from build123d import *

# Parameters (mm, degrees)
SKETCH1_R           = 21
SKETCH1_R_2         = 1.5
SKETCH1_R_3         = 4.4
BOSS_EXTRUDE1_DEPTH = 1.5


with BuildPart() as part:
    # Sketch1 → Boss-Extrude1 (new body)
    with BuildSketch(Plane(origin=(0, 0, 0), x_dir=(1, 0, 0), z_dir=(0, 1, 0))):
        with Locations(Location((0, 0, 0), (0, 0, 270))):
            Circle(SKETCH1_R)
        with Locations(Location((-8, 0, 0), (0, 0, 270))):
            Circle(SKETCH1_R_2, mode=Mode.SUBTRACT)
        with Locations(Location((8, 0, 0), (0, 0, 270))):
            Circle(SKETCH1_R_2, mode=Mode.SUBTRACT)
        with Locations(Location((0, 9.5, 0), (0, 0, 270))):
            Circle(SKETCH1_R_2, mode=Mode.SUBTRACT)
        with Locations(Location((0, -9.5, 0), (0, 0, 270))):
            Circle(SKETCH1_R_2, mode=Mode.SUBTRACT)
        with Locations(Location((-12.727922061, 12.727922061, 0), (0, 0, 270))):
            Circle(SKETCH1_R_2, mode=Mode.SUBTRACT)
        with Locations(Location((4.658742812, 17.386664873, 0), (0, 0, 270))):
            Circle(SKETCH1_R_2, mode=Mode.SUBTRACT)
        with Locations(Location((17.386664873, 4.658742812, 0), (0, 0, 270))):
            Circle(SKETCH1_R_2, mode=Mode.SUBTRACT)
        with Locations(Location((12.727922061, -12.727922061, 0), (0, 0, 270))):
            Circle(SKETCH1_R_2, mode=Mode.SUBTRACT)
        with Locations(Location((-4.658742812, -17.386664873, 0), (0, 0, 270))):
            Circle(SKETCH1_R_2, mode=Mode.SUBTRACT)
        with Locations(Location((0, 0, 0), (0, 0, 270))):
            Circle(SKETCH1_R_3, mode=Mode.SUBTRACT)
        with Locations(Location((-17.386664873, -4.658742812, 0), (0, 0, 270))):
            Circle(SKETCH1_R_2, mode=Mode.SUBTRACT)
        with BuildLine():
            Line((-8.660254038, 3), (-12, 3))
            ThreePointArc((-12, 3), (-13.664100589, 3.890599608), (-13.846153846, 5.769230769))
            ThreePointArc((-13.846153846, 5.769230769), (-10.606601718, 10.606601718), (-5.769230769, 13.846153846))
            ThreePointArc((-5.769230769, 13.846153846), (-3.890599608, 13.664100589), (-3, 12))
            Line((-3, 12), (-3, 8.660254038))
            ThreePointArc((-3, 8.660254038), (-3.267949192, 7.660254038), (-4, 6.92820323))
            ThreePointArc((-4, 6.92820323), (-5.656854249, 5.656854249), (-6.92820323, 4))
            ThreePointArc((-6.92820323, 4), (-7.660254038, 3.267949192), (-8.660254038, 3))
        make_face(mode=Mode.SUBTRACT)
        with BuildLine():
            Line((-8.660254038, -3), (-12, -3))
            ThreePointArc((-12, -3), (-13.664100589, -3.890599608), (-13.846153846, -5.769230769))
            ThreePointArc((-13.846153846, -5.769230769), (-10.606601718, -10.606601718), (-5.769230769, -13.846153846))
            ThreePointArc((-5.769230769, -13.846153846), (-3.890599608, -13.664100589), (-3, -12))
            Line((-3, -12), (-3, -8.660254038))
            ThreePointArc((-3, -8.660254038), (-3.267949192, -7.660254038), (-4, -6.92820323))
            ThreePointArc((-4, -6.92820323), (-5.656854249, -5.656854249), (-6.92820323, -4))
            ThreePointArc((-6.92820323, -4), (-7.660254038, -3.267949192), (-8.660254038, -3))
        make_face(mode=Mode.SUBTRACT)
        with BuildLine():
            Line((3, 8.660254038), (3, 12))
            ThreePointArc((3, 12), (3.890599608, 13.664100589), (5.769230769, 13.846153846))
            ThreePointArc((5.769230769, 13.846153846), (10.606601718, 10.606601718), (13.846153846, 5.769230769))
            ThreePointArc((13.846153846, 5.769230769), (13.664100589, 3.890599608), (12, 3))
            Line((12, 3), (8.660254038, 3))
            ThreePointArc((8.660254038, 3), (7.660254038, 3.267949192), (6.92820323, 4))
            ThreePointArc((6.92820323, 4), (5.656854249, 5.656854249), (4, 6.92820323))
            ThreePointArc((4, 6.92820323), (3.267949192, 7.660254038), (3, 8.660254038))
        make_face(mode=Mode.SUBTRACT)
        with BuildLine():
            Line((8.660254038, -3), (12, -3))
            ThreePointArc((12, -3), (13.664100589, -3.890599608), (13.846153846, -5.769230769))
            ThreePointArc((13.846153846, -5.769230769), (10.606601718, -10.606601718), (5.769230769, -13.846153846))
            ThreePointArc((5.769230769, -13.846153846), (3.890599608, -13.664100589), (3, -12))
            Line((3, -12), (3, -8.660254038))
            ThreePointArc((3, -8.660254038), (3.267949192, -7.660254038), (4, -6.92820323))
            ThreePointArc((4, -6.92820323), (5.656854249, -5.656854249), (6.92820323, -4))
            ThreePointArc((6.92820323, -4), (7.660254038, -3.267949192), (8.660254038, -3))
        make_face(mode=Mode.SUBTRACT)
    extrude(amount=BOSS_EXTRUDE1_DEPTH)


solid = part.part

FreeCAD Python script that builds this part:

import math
import FreeCAD as App
import Part
import Sketcher

doc = App.newDocument("Part")
body = doc.addObject("PartDesign::Body", "Body")

# Sketch on XZ plane
sketch1 = body.newObject("Sketcher::SketchObject", "Sketch")
sketch1.AttachmentSupport = (doc.getObject("XZ_Plane"), [""])
sketch1.MapMode = "FlatFace"
sketch1.addGeometry([
    Part.Circle(App.Vector(0, 0, 0), App.Vector(0, 0, 1), 21),  # 0
    Part.Circle(App.Vector(-12.7, -12.7, 0), App.Vector(0, 0, 1), 1.5),  # 1
    Part.Circle(App.Vector(0, -9.5, 0), App.Vector(0, 0, 1), 1.5),  # 2
    Part.ArcOfCircle(Part.Circle(App.Vector(-8.7, -5, 0), App.Vector(0, 0, 1), 2), math.radians(30), math.radians(90)),  # 3
    Part.LineSegment(App.Vector(-8.7, -3, 0), App.Vector(-12, -3, 0)),  # 4
    Part.ArcOfCircle(Part.Circle(App.Vector(-12, -5, 0), App.Vector(0, 0, 1), 2), math.radians(90), math.radians(203)),  # 5
    Part.ArcOfCircle(Part.Circle(App.Vector(0, 0, 0), App.Vector(0, 0, 1), 15), math.radians(-157), math.radians(-113)),  # 6
    Part.ArcOfCircle(Part.Circle(App.Vector(-5, -12, 0), App.Vector(0, 0, 1), 2), math.radians(-113), math.radians(0)),  # 7
    Part.LineSegment(App.Vector(-3, -12, 0), App.Vector(-3, -8.7, 0)),  # 8
    Part.ArcOfCircle(Part.Circle(App.Vector(-5, -8.7, 0), App.Vector(0, 0, 1), 2), math.radians(0), math.radians(60)),  # 9
    Part.ArcOfCircle(Part.Circle(App.Vector(0, 0, 0), App.Vector(0, 0, 1), 8), math.radians(-150), math.radians(-120)),  # 10
    Part.Circle(App.Vector(-17.4, 4.7, 0), App.Vector(0, 0, 1), 1.5),  # 11
    Part.Circle(App.Vector(-8, 0, 0), App.Vector(0, 0, 1), 1.5),  # 12
    Part.LineSegment(App.Vector(-12, 3, 0), App.Vector(-8.7, 3, 0)),  # 13
    Part.ArcOfCircle(Part.Circle(App.Vector(-8.7, 5, 0), App.Vector(0, 0, 1), 2), math.radians(-90), math.radians(-30)),  # 14
    Part.ArcOfCircle(Part.Circle(App.Vector(0, 0, 0), App.Vector(0, 0, 1), 8), math.radians(120), math.radians(150)),  # 15
    Part.ArcOfCircle(Part.Circle(App.Vector(-5, 8.7, 0), App.Vector(0, 0, 1), 2), math.radians(-60), math.radians(0)),  # 16
    Part.LineSegment(App.Vector(-3, 8.7, 0), App.Vector(-3, 12, 0)),  # 17
    Part.ArcOfCircle(Part.Circle(App.Vector(-5, 12, 0), App.Vector(0, 0, 1), 2), math.radians(0), math.radians(113)),  # 18
    Part.ArcOfCircle(Part.Circle(App.Vector(0, 0, 0), App.Vector(0, 0, 1), 15), math.radians(113), math.radians(157)),  # 19
    Part.ArcOfCircle(Part.Circle(App.Vector(-12, 5, 0), App.Vector(0, 0, 1), 2), math.radians(157), math.radians(270)),  # 20
    Part.Circle(App.Vector(-4.7, 17.4, 0), App.Vector(0, 0, 1), 1.5),  # 21
    Part.Circle(App.Vector(4.7, -17.4, 0), App.Vector(0, 0, 1), 1.5),  # 22
    Part.ArcOfCircle(Part.Circle(App.Vector(5, -8.7, 0), App.Vector(0, 0, 1), 2), math.radians(120), math.radians(180)),  # 23
    Part.LineSegment(App.Vector(3, -8.7, 0), App.Vector(3, -12, 0)),  # 24
    Part.ArcOfCircle(Part.Circle(App.Vector(5, -12, 0), App.Vector(0, 0, 1), 2), math.radians(180), math.radians(293)),  # 25
    Part.ArcOfCircle(Part.Circle(App.Vector(0, 0, 0), App.Vector(0, 0, 1), 15), math.radians(-67), math.radians(-23)),  # 26
    Part.ArcOfCircle(Part.Circle(App.Vector(12, -5, 0), App.Vector(0, 0, 1), 2), math.radians(-23), math.radians(90)),  # 27
    Part.LineSegment(App.Vector(12, -3, 0), App.Vector(8.7, -3, 0)),  # 28
    Part.ArcOfCircle(Part.Circle(App.Vector(8.7, -5, 0), App.Vector(0, 0, 1), 2), math.radians(90), math.radians(150)),  # 29
    Part.ArcOfCircle(Part.Circle(App.Vector(0, 0, 0), App.Vector(0, 0, 1), 8), math.radians(-60), math.radians(-30)),  # 30
    Part.Circle(App.Vector(17.4, -4.7, 0), App.Vector(0, 0, 1), 1.5),  # 31
    Part.Circle(App.Vector(0, 0, 0), App.Vector(0, 0, 1), 4.4),  # 32
    Part.Circle(App.Vector(8, 0, 0), App.Vector(0, 0, 1), 1.5),  # 33
    Part.ArcOfCircle(Part.Circle(App.Vector(8.7, 5, 0), App.Vector(0, 0, 1), 2), math.radians(-150), math.radians(-90)),  # 34
    Part.LineSegment(App.Vector(8.7, 3, 0), App.Vector(12, 3, 0)),  # 35
    Part.ArcOfCircle(Part.Circle(App.Vector(12, 5, 0), App.Vector(0, 0, 1), 2), math.radians(-90), math.radians(23)),  # 36
    Part.ArcOfCircle(Part.Circle(App.Vector(0, 0, 0), App.Vector(0, 0, 1), 15), math.radians(23), math.radians(67)),  # 37
    Part.ArcOfCircle(Part.Circle(App.Vector(5, 12, 0), App.Vector(0, 0, 1), 2), math.radians(67), math.radians(180)),  # 38
    Part.LineSegment(App.Vector(3, 12, 0), App.Vector(3, 8.7, 0)),  # 39
    Part.ArcOfCircle(Part.Circle(App.Vector(5, 8.7, 0), App.Vector(0, 0, 1), 2), math.radians(180), math.radians(240)),  # 40
    Part.ArcOfCircle(Part.Circle(App.Vector(0, 0, 0), App.Vector(0, 0, 1), 8), math.radians(30), math.radians(60)),  # 41
    Part.Circle(App.Vector(0, 9.5, 0), App.Vector(0, 0, 1), 1.5),  # 42
    Part.Circle(App.Vector(12.7, 12.7, 0), App.Vector(0, 0, 1), 1.5),  # 43
], False)
sketch1.addConstraint([
    Sketcher.Constraint("Tangent", 3, 2, 4, 1),
    Sketcher.Constraint("Tangent", 4, 2, 5, 1),
    Sketcher.Constraint("Tangent", 5, 2, 6, 1),
    Sketcher.Constraint("Tangent", 6, 2, 7, 1),
    Sketcher.Constraint("Tangent", 7, 2, 8, 1),
    Sketcher.Constraint("Tangent", 8, 2, 9, 1),
    Sketcher.Constraint("Tangent", 9, 2, 10, 2),
    Sketcher.Constraint("Tangent", 10, 1, 3, 1),
    Sketcher.Constraint("Tangent", 13, 2, 14, 1),
    Sketcher.Constraint("Tangent", 14, 2, 15, 2),
    Sketcher.Constraint("Tangent", 15, 1, 16, 1),
    Sketcher.Constraint("Tangent", 16, 2, 17, 1),
    Sketcher.Constraint("Tangent", 17, 2, 18, 1),
    Sketcher.Constraint("Tangent", 18, 2, 19, 1),
    Sketcher.Constraint("Tangent", 19, 2, 20, 1),
    Sketcher.Constraint("Tangent", 20, 2, 13, 1),
    Sketcher.Constraint("Tangent", 23, 2, 24, 1),
    Sketcher.Constraint("Tangent", 24, 2, 25, 1),
    Sketcher.Constraint("Tangent", 25, 2, 26, 1),
    Sketcher.Constraint("Tangent", 26, 2, 27, 1),
    Sketcher.Constraint("Tangent", 27, 2, 28, 1),
    Sketcher.Constraint("Tangent", 28, 2, 29, 1),
    Sketcher.Constraint("Tangent", 29, 2, 30, 2),
    Sketcher.Constraint("Tangent", 30, 1, 23, 1),
    Sketcher.Constraint("Tangent", 34, 2, 35, 1),
    Sketcher.Constraint("Tangent", 35, 2, 36, 1),
    Sketcher.Constraint("Tangent", 36, 2, 37, 1),
    Sketcher.Constraint("Tangent", 37, 2, 38, 1),
    Sketcher.Constraint("Tangent", 38, 2, 39, 1),
    Sketcher.Constraint("Tangent", 39, 2, 40, 1),
    Sketcher.Constraint("Tangent", 40, 2, 41, 2),
    Sketcher.Constraint("Tangent", 41, 1, 34, 1),
    Sketcher.Constraint("Horizontal", 4),
    Sketcher.Constraint("Vertical", 8),
    Sketcher.Constraint("Horizontal", 13),
    Sketcher.Constraint("Vertical", 17),
    Sketcher.Constraint("Vertical", 24),
    Sketcher.Constraint("Horizontal", 28),
    Sketcher.Constraint("Horizontal", 35),
    Sketcher.Constraint("Vertical", 39),
    Sketcher.Constraint("Coincident", 0, 3, -1, 1),
    Sketcher.Constraint("Coincident", 6, 3, -1, 1),
    Sketcher.Constraint("Coincident", 10, 3, -1, 1),
    Sketcher.Constraint("Coincident", 15, 3, -1, 1),
    Sketcher.Constraint("Coincident", 19, 3, -1, 1),
    Sketcher.Constraint("Coincident", 26, 3, -1, 1),
    Sketcher.Constraint("Coincident", 30, 3, -1, 1),
    Sketcher.Constraint("Coincident", 32, 3, -1, 1),
    Sketcher.Constraint("Coincident", 37, 3, -1, 1),
    Sketcher.Constraint("Coincident", 41, 3, -1, 1),
    Sketcher.Constraint("Equal", 1, 2),
    Sketcher.Constraint("Equal", 3, 5),
    Sketcher.Constraint("Equal", 5, 7),
    Sketcher.Constraint("Equal", 7, 9),
    Sketcher.Constraint("Equal", 2, 11),
    Sketcher.Constraint("Equal", 11, 12),
    Sketcher.Constraint("Equal", 9, 14),
    Sketcher.Constraint("Equal", 10, 15),
    Sketcher.Constraint("Equal", 14, 16),
    Sketcher.Constraint("Equal", 16, 18),
    Sketcher.Constraint("Equal", 6, 19),
    Sketcher.Constraint("Equal", 18, 20),
    Sketcher.Constraint("Equal", 12, 21),
    Sketcher.Constraint("Equal", 21, 22),
    Sketcher.Constraint("Equal", 20, 23),
    Sketcher.Constraint("Equal", 23, 25),
    Sketcher.Constraint("Equal", 19, 26),
    Sketcher.Constraint("Equal", 25, 27),
    Sketcher.Constraint("Equal", 27, 29),
    Sketcher.Constraint("Equal", 15, 30),
    Sketcher.Constraint("Equal", 22, 31),
    Sketcher.Constraint("Equal", 31, 33),
    Sketcher.Constraint("Equal", 29, 34),
    Sketcher.Constraint("Equal", 34, 36),
    Sketcher.Constraint("Equal", 26, 37),
    Sketcher.Constraint("Equal", 36, 38),
    Sketcher.Constraint("Equal", 38, 40),
    Sketcher.Constraint("Equal", 30, 41),
    Sketcher.Constraint("Equal", 33, 42),
    Sketcher.Constraint("Equal", 42, 43),
    Sketcher.Constraint("Symmetric", 21, 3, 22, 3, -1, 1),
    Sketcher.Constraint("Symmetric", 11, 3, 31, 3, -1, 1),
    Sketcher.Constraint("Symmetric", 12, 3, 33, 3, -1, 1),
    Sketcher.Constraint("Symmetric", 2, 3, 42, 3, -1, 1),
    Sketcher.Constraint("Symmetric", 1, 3, 43, 3, -1, 1),
    Sketcher.Constraint("PointOnObject", 2, 3, -2),
    Sketcher.Constraint("PointOnObject", 12, 3, -1),
    Sketcher.Constraint("Horizontal", 9, 3, 23, 3),
    Sketcher.Constraint("Horizontal", 5, 3, 27, 3),
    Sketcher.Constraint("Horizontal", 20, 3, 34, 3),
    Sketcher.Constraint("Horizontal", 18, 3, 38, 3),
    Sketcher.Constraint("Vertical", 3, 3, 14, 3),
    Sketcher.Constraint("Vertical", 9, 3, 16, 3),
    Sketcher.Constraint("Equal", 35, 8),
    Sketcher.Constraint("Diameter", 0, 42.0),
    Sketcher.Constraint("Diameter", 1, 3.0),
    Sketcher.Constraint("Radius", 3, 2.0),
    Sketcher.Constraint("Radius", 6, 15.0),
    Sketcher.Constraint("Radius", 10, 8.0),
    Sketcher.Constraint("Diameter", 32, 8.8),
    Sketcher.Constraint("DistanceY", 3, 3, -1, 1, 5.0),
    Sketcher.Constraint("DistanceX", 12, 3, -1, 1, 8.0),
    Sketcher.Constraint("DistanceY", 2, 3, -1, 1, 9.5),
    Sketcher.Constraint("DistanceX", 1, 3, -1, 1, 12.727922),
    Sketcher.Constraint("DistanceY", 1, 3, -1, 1, 12.727922),
    Sketcher.Constraint("DistanceX", 11, 3, -1, 1, 17.386665),
    Sketcher.Constraint("DistanceY", -1, 1, 11, 3, 4.658743),
    Sketcher.Constraint("DistanceX", 21, 3, -1, 1, 4.658743),
    Sketcher.Constraint("DistanceY", -1, 1, 21, 3, 17.386665),
])
pad1 = body.newObject("PartDesign::Pad", "Pad")
pad1.Profile = sketch1
pad1.Length = 1.5
pad1.Reversed = True

doc.recompute()
